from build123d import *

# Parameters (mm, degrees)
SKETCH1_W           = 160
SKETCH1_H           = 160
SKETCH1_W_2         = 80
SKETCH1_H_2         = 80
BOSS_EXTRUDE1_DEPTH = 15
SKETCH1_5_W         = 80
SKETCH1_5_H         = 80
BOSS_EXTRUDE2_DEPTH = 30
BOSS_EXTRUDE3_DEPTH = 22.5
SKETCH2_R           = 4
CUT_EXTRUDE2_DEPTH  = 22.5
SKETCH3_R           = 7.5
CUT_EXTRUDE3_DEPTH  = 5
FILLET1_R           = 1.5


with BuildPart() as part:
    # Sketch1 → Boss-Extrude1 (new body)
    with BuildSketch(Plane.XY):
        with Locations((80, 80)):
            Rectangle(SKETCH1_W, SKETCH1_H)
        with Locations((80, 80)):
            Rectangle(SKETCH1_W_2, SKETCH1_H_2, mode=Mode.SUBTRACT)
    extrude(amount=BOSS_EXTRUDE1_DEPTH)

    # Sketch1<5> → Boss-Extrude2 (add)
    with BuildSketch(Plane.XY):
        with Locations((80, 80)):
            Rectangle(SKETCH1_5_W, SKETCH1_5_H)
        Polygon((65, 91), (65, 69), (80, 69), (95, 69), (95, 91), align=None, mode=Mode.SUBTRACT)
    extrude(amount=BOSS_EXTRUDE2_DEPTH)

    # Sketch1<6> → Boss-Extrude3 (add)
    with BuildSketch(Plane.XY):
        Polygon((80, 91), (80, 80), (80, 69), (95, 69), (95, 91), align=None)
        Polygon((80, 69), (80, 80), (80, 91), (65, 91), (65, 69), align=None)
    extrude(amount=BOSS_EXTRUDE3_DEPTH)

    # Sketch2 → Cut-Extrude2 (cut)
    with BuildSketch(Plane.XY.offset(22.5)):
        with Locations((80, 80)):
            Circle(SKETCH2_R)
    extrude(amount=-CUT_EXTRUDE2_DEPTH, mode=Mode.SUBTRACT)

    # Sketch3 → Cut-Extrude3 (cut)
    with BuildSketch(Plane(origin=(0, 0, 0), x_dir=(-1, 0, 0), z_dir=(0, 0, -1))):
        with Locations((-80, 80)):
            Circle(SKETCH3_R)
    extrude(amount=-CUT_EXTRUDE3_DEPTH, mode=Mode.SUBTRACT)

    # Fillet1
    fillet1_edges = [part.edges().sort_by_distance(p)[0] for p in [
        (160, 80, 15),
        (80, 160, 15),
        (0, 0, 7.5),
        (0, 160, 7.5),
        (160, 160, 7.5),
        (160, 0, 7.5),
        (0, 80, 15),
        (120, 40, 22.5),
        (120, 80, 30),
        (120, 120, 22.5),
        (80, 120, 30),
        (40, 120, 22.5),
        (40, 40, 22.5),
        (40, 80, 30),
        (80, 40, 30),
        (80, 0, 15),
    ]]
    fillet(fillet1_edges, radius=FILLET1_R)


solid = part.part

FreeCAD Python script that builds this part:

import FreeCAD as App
import Part
import Sketcher


def edges_at(feature, points):
    """Names of the edges that pass closest to the given points."""
    edges = feature.Shape.Edges
    near = lambda p: min(range(len(edges)), key=lambda i: edges[i].distToShape(Part.Vertex(*p))[0])
    return sorted({f"Edge{near(p) + 1}" for p in points})

doc = App.newDocument("Part")
body = doc.addObject("PartDesign::Body", "Body")

sketch1 = body.newObject("Sketcher::SketchObject", "Sketch")
sketch1.AttachmentSupport = (doc.getObject("XY_Plane"), [""])
sketch1.MapMode = "FlatFace"
sketch1.addGeometry(Part.LineSegment(App.Vector(0, 160, 0), App.Vector(0, 0, 0)), False)
sketch1.addGeometry(Part.LineSegment(App.Vector(0, 0, 0), App.Vector(160, 0, 0)), False)
sketch1.addGeometry(Part.LineSegment(App.Vector(160, 0, 0), App.Vector(160, 160, 0)), False)
sketch1.addGeometry(Part.LineSegment(App.Vector(160, 160, 0), App.Vector(0, 160, 0)), False)
sketch1.addGeometry(Part.LineSegment(App.Vector(120, 40, 0), App.Vector(40, 40, 0)), False)
sketch1.addGeometry(Part.LineSegment(App.Vector(40, 40, 0), App.Vector(40, 120, 0)), False)
sketch1.addGeometry(Part.LineSegment(App.Vector(40, 120, 0), App.Vector(120, 120, 0)), False)
sketch1.addGeometry(Part.LineSegment(App.Vector(120, 120, 0), App.Vector(120, 40, 0)), False)
sketch1.addConstraint(Sketcher.Constraint("Coincident", 0, 2, 1, 1))
sketch1.addConstraint(Sketcher.Constraint("Coincident", 1, 2, 2, 1))
sketch1.addConstraint(Sketcher.Constraint("Coincident", 2, 2, 3, 1))
sketch1.addConstraint(Sketcher.Constraint("Coincident", 3, 2, 0, 1))
sketch1.addConstraint(Sketcher.Constraint("Coincident", 4, 2, 5, 1))
sketch1.addConstraint(Sketcher.Constraint("Coincident", 5, 2, 6, 1))
sketch1.addConstraint(Sketcher.Constraint("Coincident", 6, 2, 7, 1))
sketch1.addConstraint(Sketcher.Constraint("Coincident", 7, 2, 4, 1))
sketch1.addConstraint(Sketcher.Constraint("Vertical", 0))
sketch1.addConstraint(Sketcher.Constraint("Horizontal", 1))
sketch1.addConstraint(Sketcher.Constraint("Vertical", 2))
sketch1.addConstraint(Sketcher.Constraint("Horizontal", 3))
sketch1.addConstraint(Sketcher.Constraint("Horizontal", 4))
sketch1.addConstraint(Sketcher.Constraint("Vertical", 5))
sketch1.addConstraint(Sketcher.Constraint("Horizontal", 6))
sketch1.addConstraint(Sketcher.Constraint("Vertical", 7))
sketch1.addConstraint(Sketcher.Constraint("Coincident", 0, 2, -1, 1))
sketch1.addConstraint(Sketcher.Constraint("Equal", 3, 0))
sketch1.addConstraint(Sketcher.Constraint("Equal", 6, 5))
sketch1.addConstraint(Sketcher.Constraint("DistanceX", 1, 1, 1, 2, 160.0))
sketch1.addConstraint(Sketcher.Constraint("DistanceX", 4, 2, 4, 1, 80.0))
sketch1.addConstraint(Sketcher.Constraint("DistanceX", -1, 1, 4, 2, 40.0))
sketch1.addConstraint(Sketcher.Constraint("DistanceY", -1, 1, 4, 2, 40.0))
pad1 = body.newObject("PartDesign::Pad", "Pad")
pad1.Profile = sketch1
pad1.Length = 15

sketch2 = body.newObject("Sketcher::SketchObject", "Sketch001")
sketch2.AttachmentSupport = (doc.getObject("XY_Plane"), [""])
sketch2.MapMode = "FlatFace"
sketch2.addGeometry(Part.LineSegment(App.Vector(40, 120, 0), App.Vector(40, 40, 0)), False)
sketch2.addGeometry(Part.LineSegment(App.Vector(40, 40, 0), App.Vector(120, 40, 0)), False)
sketch2.addGeometry(Part.LineSegment(App.Vector(120, 40, 0), App.Vector(120, 120, 0)), False)
sketch2.addGeometry(Part.LineSegment(App.Vector(120, 120, 0), App.Vector(40, 120, 0)), False)
sketch2.addGeometry(Part.LineSegment(App.Vector(65, 69, 0), App.Vector(65, 91, 0)), False)
sketch2.addGeometry(Part.LineSegment(App.Vector(65, 91, 0), App.Vector(95, 91, 0)), False)
sketch2.addGeometry(Part.LineSegment(App.Vector(95, 91, 0), App.Vector(95, 69, 0)), False)
sketch2.addGeometry(Part.LineSegment(App.Vector(95, 69, 0), App.Vector(65, 69, 0)), False)
sketch2.addConstraint(Sketcher.Constraint("Coincident", 0, 2, 1, 1))
sketch2.addConstraint(Sketcher.Constraint("Coincident", 1, 2, 2, 1))
sketch2.addConstraint(Sketcher.Constraint("Coincident", 2, 2, 3, 1))
sketch2.addConstraint(Sketcher.Constraint("Coincident", 3, 2, 0, 1))
sketch2.addConstraint(Sketcher.Constraint("Coincident", 4, 2, 5, 1))
sketch2.addConstraint(Sketcher.Constraint("Coincident", 5, 2, 6, 1))
sketch2.addConstraint(Sketcher.Constraint("Coincident", 6, 2, 7, 1))
sketch2.addConstraint(Sketcher.Constraint("Coincident", 7, 2, 4, 1))
sketch2.addConstraint(Sketcher.Constraint("Vertical", 0))
sketch2.addConstraint(Sketcher.Constraint("Horizontal", 1))
sketch2.addConstraint(Sketcher.Constraint("Vertical", 2))
sketch2.addConstraint(Sketcher.Constraint("Horizontal", 3))
sketch2.addConstraint(Sketcher.Constraint("Vertical", 4))
sketch2.addConstraint(Sketcher.Constraint("Horizontal", 5))
sketch2.addConstraint(Sketcher.Constraint("Vertical", 6))
sketch2.addConstraint(Sketcher.Constraint("Horizontal", 7))
sketch2.addConstraint(Sketcher.Constraint("Equal", 3, 0))
sketch2.addConstraint(Sketcher.Constraint("DistanceX", 1, 1, 1, 2, 80.0))
sketch2.addConstraint(Sketcher.Constraint("DistanceX", 5, 1, 5, 2, 30.0))
sketch2.addConstraint(Sketcher.Constraint("DistanceY", 4, 1, 4, 2, 22.0))
sketch2.addConstraint(Sketcher.Constraint("DistanceX", -1, 1, 0, 2, 40.0))
sketch2.addConstraint(Sketcher.Constraint("DistanceY", -1, 1, 0, 2, 40.0))
sketch2.addConstraint(Sketcher.Constraint("DistanceX", -1, 1, 4, 2, 65.0))
sketch2.addConstraint(Sketcher.Constraint("DistanceY", -1, 1, 4, 2, 91.0))
pad2 = body.newObject("PartDesign::Pad", "Pad001")
pad2.Profile = sketch2
pad2.Length = 30

sketch3 = body.newObject("Sketcher::SketchObject", "Sketch002")
sketch3.AttachmentSupport = (doc.getObject("XY_Plane"), [""])
sketch3.MapMode = "FlatFace"
sketch3.addGeometry(Part.LineSegment(App.Vector(95, 69, 0), App.Vector(95, 91, 0)), False)
sketch3.addGeometry(Part.LineSegment(App.Vector(95, 91, 0), App.Vector(65, 91, 0)), False)
sketch3.addGeometry(Part.LineSegment(App.Vector(65, 91, 0), App.Vector(65, 69, 0)), False)
sketch3.addGeometry(Part.LineSegment(App.Vector(65, 69, 0), App.Vector(95, 69, 0)), False)
sketch3.addConstraint(Sketcher.Constraint("Coincident", 0, 2, 1, 1))
sketch3.addConstraint(Sketcher.Constraint("Coincident", 1, 2, 2, 1))
sketch3.addConstraint(Sketcher.Constraint("Coincident", 2, 2, 3, 1))
sketch3.addConstraint(Sketcher.Constraint("Coincident", 3, 2, 0, 1))
sketch3.addConstraint(Sketcher.Constraint("Vertical", 0))
sketch3.addConstraint(Sketcher.Constraint("Horizontal", 1))
sketch3.addConstraint(Sketcher.Constraint("Vertical", 2))
sketch3.addConstraint(Sketcher.Constraint("Horizontal", 3))
sketch3.addConstraint(Sketcher.Constraint("DistanceX", 1, 2, 1, 1, 30.0))
sketch3.addConstraint(Sketcher.Constraint("DistanceY", 0, 1, 0, 2, 22.0))
sketch3.addConstraint(Sketcher.Constraint("DistanceX", -1, 1, 0, 2, 95.0))
sketch3.addConstraint(Sketcher.Constraint("DistanceY", -1, 1, 0, 2, 91.0))
pad3 = body.newObject("PartDesign::Pad", "Pad002")
pad3.Profile = sketch3
pad3.Length = 22.5

sketch4 = body.newObject("Sketcher::SketchObject", "Sketch003")
sketch4.AttachmentSupport = (doc.getObject("XY_Plane"), [""])
sketch4.MapMode = "FlatFace"
sketch4.AttachmentOffset = App.Placement(App.Vector(0, 0, 22.5), App.Rotation())
sketch4.addGeometry(Part.Circle(App.Vector(80, 80, 0), App.Vector(0, 0, 1), 4), False)
sketch4.addConstraint(Sketcher.Constraint("Diameter", 0, 8.0))
sketch4.addConstraint(Sketcher.Constraint("DistanceX", -1, 1, 0, 3, 80.0))
sketch4.addConstraint(Sketcher.Constraint("DistanceY", -1, 1, 0, 3, 80.0))
pocket1 = body.newObject("PartDesign::Pocket", "Pocket")
pocket1.Profile = sketch4
pocket1.Length = 22.5

sketch5 = body.newObject("Sketcher::SketchObject", "Sketch004")
sketch5.AttachmentSupport = (doc.getObject("XY_Plane"), [""])
sketch5.MapMode = "FlatFace"
sketch5.addGeometry(Part.Circle(App.Vector(80, 80, 0), App.Vector(0, 0, 1), 7.5), False)
sketch5.addConstraint(Sketcher.Constraint("Diameter", 0, 15.0))
sketch5.addConstraint(Sketcher.Constraint("DistanceX", -1, 1, 0, 3, 80.0))
sketch5.addConstraint(Sketcher.Constraint("DistanceY", -1, 1, 0, 3, 80.0))
pocket2 = body.newObject("PartDesign::Pocket", "Pocket001")
pocket2.Profile = sketch5
pocket2.Length = 5
pocket2.Reversed = True
doc.recompute()

fillet = body.newObject("PartDesign::Fillet", "Fillet")
fillet.Base = (pocket2, edges_at(pocket2, [
    (160, 80, 15),
    (80, 160, 15),
    (0, 0, 7.5),
    (0, 160, 7.5),
    (160, 160, 7.5),
    (160, 0, 7.5),
    (0, 80, 15),
    (120, 40, 22.5),
    (120, 80, 30),
    (120, 120, 22.5),
    (80, 120, 30),
    (40, 120, 22.5),
    (40, 40, 22.5),
    (40, 80, 30),
    (80, 40, 30),
    (80, 0, 15),
]))
fillet.Radius = 1.5

doc.recompute()
